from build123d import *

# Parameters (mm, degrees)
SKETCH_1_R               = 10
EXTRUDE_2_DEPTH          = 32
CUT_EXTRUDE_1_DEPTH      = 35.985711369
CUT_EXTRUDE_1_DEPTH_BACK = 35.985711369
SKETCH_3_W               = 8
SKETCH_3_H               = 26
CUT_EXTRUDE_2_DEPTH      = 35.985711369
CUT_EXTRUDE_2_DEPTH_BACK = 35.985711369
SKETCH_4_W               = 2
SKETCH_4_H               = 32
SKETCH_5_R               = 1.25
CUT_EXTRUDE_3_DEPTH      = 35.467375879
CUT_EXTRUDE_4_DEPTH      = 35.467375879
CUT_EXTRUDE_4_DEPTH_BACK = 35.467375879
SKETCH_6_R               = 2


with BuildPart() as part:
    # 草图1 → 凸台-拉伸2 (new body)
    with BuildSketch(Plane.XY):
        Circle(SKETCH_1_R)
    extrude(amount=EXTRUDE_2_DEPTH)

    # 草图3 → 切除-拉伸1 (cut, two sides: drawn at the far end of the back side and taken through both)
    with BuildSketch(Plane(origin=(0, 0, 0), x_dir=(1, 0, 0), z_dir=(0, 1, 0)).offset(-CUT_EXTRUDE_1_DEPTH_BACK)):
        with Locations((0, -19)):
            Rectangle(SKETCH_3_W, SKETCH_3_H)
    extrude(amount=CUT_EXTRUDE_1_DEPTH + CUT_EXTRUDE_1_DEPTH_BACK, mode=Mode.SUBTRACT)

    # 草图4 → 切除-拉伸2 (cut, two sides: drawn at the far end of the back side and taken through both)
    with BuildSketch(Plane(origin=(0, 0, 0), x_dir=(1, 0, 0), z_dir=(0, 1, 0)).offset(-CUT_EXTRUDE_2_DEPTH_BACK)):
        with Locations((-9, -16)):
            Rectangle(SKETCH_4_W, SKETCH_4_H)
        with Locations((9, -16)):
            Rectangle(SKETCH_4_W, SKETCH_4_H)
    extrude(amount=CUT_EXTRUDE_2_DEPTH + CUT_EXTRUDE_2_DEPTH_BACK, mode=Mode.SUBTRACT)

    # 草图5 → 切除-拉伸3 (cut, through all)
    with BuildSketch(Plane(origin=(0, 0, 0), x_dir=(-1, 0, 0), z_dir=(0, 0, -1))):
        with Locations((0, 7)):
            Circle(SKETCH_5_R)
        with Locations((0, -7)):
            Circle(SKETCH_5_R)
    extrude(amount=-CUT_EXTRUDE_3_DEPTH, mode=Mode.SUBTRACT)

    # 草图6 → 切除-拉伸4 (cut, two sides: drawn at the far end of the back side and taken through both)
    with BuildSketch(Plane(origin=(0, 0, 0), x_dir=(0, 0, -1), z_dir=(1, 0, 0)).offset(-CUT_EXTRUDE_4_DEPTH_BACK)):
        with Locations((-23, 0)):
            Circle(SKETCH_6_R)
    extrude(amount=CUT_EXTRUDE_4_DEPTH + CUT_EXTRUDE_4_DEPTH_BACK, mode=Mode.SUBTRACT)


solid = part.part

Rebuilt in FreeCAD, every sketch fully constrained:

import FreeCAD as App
import Part
import Sketcher

V = App.Vector
Q = App.Units.Quantity


def add_polygon(sketch, points):
    """Adds a closed chain of lines whose ends are joined by coincident constraints."""
    first, n = sketch.GeometryCount, len(points)
    for a, b in zip(points, points[1:] + points[:1]):
        sketch.addGeometry(Part.LineSegment(App.Vector(*a, 0), App.Vector(*b, 0)), False)
    for i in range(n):
        sketch.addConstraint(Sketcher.Constraint("Coincident", first + i, 2, first + (i + 1) % n, 1))

doc = App.newDocument("Part")
body = doc.addObject("PartDesign::Body", "Body")

# Sketch on XY plane
sketch1 = body.newObject("Sketcher::SketchObject", "Sketch")
sketch1.AttachmentSupport = (doc.getObject("XY_Plane"), [""])
sketch1.MapMode = "FlatFace"
sketch1.addGeometry(Part.Circle(V(0, 0, 0), V(0, 0, 1), 10), False)
sketch1.addConstraint(Sketcher.Constraint("Coincident", 0, 3, -1, 1))
sketch1.addConstraint(Sketcher.Constraint("Diameter", 0, Q("20 mm")))
pad1 = body.newObject("PartDesign::Pad", "Pad")
pad1.Profile = sketch1
pad1.Length = 32

# Sketch on XZ plane
sketch2 = body.newObject("Sketcher::SketchObject", "Sketch001")
sketch2.AttachmentSupport = (doc.getObject("XZ_Plane"), [""])
sketch2.MapMode = "FlatFace"
add_polygon(sketch2, [(-4, 6), (-4, 32), (4, 32), (4, 6)])  # lines 0-3
sketch2.addConstraint(Sketcher.Constraint("Vertical", 0))
sketch2.addConstraint(Sketcher.Constraint("Horizontal", 1))
sketch2.addConstraint(Sketcher.Constraint("Vertical", 2))
sketch2.addConstraint(Sketcher.Constraint("Horizontal", 3))
sketch2.addConstraint(Sketcher.Constraint("DistanceX", 1, 1, 1, 2, Q("8 mm")))
sketch2.addConstraint(Sketcher.Constraint("DistanceY", 0, 1, 0, 2, Q("26 mm")))
sketch2.addConstraint(Sketcher.Constraint("DistanceX", 0, 2, -1, 1, Q("4 mm")))
sketch2.addConstraint(Sketcher.Constraint("DistanceY", -1, 1, 0, 2, Q("32 mm")))
pocket1 = body.newObject("PartDesign::Pocket", "Pocket")
pocket1.Profile = sketch2
pocket1.Type = "ThroughAll"
pocket1.Midplane = True

# Sketch on XZ plane
sketch3 = body.newObject("Sketcher::SketchObject", "Sketch002")
sketch3.AttachmentSupport = (doc.getObject("XZ_Plane"), [""])
sketch3.MapMode = "FlatFace"
add_polygon(sketch3, [(-10, 0), (-10, 32), (-8, 32), (-8, 0)])  # lines 0-3
add_polygon(sketch3, [(8, 0), (8, 32), (10, 32), (10, 0)])  # lines 4-7
sketch3.addConstraint(Sketcher.Constraint("Vertical", 0))
sketch3.addConstraint(Sketcher.Constraint("Horizontal", 1))
sketch3.addConstraint(Sketcher.Constraint("Vertical", 2))
sketch3.addConstraint(Sketcher.Constraint("Horizontal", 3))
sketch3.addConstraint(Sketcher.Constraint("Vertical", 4))
sketch3.addConstraint(Sketcher.Constraint("Horizontal", 5))
sketch3.addConstraint(Sketcher.Constraint("Vertical", 6))
sketch3.addConstraint(Sketcher.Constraint("Horizontal", 7))
sketch3.addConstraint(Sketcher.Constraint("Symmetric", 3, 2, 6, 2, -1, 1))
sketch3.addConstraint(Sketcher.Constraint("Symmetric", 1, 2, 4, 2, -2))
sketch3.addConstraint(Sketcher.Constraint("PointOnObject", 2, 2, -1))
sketch3.addConstraint(Sketcher.Constraint("DistanceX", 1, 1, 1, 2, Q("2 mm")))
sketch3.addConstraint(Sketcher.Constraint("DistanceY", 0, 1, 0, 2, Q("32 mm")))
sketch3.addConstraint(Sketcher.Constraint("DistanceX", 0, 2, -1, 1, Q("10 mm")))
pocket2 = body.newObject("PartDesign::Pocket", "Pocket001")
pocket2.Profile = sketch3
pocket2.Type = "ThroughAll"
pocket2.Midplane = True

# Sketch on XY plane
sketch4 = body.newObject("Sketcher::SketchObject", "Sketch003")
sketch4.AttachmentSupport = (doc.getObject("XY_Plane"), [""])
sketch4.MapMode = "FlatFace"
sketch4.addGeometry(Part.Circle(V(0, 7, 0), V(0, 0, 1), 1.25), False)
sketch4.addGeometry(Part.Circle(V(0, -7, 0), V(0, 0, 1), 1.25), False)
sketch4.addConstraint(Sketcher.Constraint("Equal", 0, 1))
sketch4.addConstraint(Sketcher.Constraint("Symmetric", 0, 3, 1, 3, -1, 1))
sketch4.addConstraint(Sketcher.Constraint("PointOnObject", 0, 3, -2))
sketch4.addConstraint(Sketcher.Constraint("Diameter", 0, Q("2.5 mm")))
sketch4.addConstraint(Sketcher.Constraint("DistanceY", -1, 1, 0, 3, Q("7 mm")))
pocket3 = body.newObject("PartDesign::Pocket", "Pocket002")
pocket3.Profile = sketch4
pocket3.Type = "ThroughAll"
pocket3.Reversed = True

# Sketch on YZ plane
sketch5 = body.newObject("Sketcher::SketchObject", "Sketch004")
sketch5.AttachmentSupport = (doc.getObject("YZ_Plane"), [""])
sketch5.MapMode = "FlatFace"
sketch5.addGeometry(Part.Circle(V(0, 23, 0), V(0, 0, 1), 2), False)
sketch5.addConstraint(Sketcher.Constraint("PointOnObject", 0, 3, -2))
sketch5.addConstraint(Sketcher.Constraint("Diameter", 0, Q("4 mm")))
sketch5.addConstraint(Sketcher.Constraint("DistanceY", -1, 1, 0, 3, Q("23 mm")))
pocket4 = body.newObject("PartDesign::Pocket", "Pocket003")
pocket4.Profile = sketch5
pocket4.Type = "ThroughAll"
pocket4.Midplane = True

doc.recompute()
